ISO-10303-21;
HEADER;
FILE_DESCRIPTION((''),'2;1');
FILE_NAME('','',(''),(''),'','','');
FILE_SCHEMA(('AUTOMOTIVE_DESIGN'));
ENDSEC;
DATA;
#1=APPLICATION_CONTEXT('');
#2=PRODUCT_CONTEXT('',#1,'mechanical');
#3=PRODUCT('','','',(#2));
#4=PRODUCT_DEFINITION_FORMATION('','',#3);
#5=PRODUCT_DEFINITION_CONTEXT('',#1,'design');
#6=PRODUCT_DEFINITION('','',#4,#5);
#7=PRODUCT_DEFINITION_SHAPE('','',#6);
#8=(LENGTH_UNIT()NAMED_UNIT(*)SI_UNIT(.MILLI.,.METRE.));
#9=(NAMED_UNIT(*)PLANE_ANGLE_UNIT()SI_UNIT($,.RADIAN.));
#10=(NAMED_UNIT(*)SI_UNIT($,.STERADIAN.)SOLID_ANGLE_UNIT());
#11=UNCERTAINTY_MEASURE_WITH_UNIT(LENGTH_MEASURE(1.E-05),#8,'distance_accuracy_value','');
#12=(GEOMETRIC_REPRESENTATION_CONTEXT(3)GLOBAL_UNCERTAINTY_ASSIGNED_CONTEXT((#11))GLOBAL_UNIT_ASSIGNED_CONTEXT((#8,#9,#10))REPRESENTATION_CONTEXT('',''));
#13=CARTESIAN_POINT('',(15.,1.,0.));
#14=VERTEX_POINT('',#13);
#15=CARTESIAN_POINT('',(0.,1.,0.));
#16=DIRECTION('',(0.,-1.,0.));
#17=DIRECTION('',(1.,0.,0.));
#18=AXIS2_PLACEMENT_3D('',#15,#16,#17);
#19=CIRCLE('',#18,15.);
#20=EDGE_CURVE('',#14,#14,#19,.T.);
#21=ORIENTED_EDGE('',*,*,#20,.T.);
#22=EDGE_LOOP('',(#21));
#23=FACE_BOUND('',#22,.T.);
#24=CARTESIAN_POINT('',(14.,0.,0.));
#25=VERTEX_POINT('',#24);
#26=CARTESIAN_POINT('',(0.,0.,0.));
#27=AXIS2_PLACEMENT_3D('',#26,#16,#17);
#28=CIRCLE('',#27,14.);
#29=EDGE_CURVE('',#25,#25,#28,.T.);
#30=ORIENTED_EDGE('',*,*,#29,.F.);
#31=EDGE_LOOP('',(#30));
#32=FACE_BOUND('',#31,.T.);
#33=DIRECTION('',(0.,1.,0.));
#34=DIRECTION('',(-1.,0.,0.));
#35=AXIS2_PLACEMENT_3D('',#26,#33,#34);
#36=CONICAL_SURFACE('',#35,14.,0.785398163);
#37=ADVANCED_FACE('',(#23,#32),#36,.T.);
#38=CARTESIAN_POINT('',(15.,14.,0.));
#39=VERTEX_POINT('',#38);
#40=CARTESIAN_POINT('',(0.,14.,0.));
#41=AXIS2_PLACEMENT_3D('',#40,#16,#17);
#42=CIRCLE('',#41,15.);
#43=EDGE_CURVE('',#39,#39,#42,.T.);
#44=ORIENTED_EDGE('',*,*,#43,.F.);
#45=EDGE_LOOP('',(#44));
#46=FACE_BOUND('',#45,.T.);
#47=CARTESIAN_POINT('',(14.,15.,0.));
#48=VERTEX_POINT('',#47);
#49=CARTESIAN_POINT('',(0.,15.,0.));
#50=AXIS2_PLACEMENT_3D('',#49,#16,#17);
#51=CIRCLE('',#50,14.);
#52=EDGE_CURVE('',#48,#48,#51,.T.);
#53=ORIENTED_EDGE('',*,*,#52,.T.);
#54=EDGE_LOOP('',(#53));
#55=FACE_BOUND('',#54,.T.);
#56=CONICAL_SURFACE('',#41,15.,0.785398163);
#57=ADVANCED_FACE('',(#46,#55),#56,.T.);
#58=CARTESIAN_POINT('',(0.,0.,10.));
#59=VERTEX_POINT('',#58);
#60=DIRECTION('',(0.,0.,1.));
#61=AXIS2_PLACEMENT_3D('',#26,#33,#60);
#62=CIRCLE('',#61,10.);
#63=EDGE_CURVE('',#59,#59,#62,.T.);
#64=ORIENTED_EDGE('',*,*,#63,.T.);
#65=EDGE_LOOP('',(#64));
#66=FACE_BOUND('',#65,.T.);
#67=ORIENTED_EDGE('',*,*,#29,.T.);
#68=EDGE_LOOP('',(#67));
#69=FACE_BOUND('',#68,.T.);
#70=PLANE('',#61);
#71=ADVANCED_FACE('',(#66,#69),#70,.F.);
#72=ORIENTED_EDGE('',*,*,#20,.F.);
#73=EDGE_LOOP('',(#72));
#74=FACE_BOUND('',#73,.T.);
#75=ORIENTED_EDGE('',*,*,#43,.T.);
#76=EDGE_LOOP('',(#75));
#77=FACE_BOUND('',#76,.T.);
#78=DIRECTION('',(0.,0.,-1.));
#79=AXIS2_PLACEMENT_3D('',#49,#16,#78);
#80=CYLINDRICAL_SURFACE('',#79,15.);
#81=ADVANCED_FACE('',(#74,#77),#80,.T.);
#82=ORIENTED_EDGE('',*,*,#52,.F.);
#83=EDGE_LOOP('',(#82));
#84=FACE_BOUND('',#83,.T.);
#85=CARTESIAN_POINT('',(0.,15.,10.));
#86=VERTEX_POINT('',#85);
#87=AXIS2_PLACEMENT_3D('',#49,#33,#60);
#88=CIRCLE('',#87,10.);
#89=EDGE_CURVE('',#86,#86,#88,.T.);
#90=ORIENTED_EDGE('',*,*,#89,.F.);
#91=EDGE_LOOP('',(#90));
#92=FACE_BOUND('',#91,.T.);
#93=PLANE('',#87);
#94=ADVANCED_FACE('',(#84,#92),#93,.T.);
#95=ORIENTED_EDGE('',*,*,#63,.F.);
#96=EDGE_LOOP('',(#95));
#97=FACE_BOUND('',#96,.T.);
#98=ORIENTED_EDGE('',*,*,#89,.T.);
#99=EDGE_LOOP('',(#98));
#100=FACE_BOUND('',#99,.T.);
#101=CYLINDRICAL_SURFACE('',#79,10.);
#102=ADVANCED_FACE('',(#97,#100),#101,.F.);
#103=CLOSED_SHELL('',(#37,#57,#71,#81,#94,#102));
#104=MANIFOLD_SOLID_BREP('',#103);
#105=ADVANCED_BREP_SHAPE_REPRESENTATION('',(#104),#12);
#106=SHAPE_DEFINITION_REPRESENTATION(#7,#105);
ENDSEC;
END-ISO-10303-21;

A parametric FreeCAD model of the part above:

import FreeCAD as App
import Part
import Sketcher
from FreeCAD import Vector
Q = App.Units.Quantity

doc = App.newDocument("Part")
params = doc.addObject("Spreadsheet::Sheet", "Params")
for row, (alias, value) in enumerate([
    ("sketch1_diameter", "30 mm"),
    ("sketch1_diameter2", "20 mm"),
    ("pad1_length", "15 mm"),
    ("sketch2_width", "1 mm"),
    ("groove_angle", "360 deg"),
], start=1):
    params.set(f"A{row}", alias)
    params.set(f"B{row}", "=" + value)
    params.setAlias(f"B{row}", alias)

body = doc.addObject("PartDesign::Body", "Body")

# Sketch on XZ plane
sketch1 = body.newObject("Sketcher::SketchObject", "Sketch")
sketch1.AttachmentSupport = (doc.getObject("XZ_Plane"), [""])
sketch1.MapMode = "FlatFace"
sketch1.addGeometry(Part.Circle(Vector(0, 0, 0), Vector(0, 0, 1), 15), False)
sketch1.addGeometry(Part.Circle(Vector(0, 0, 0), Vector(0, 0, 1), 10), False)
sketch1.addConstraint(Sketcher.Constraint("Coincident", 0, 3, -1, 1))
sketch1.addConstraint(Sketcher.Constraint("Coincident", 1, 3, -1, 1))
sketch1.addConstraint(Sketcher.Constraint("Diameter", 0, Q("30 mm")))
sketch1.addConstraint(Sketcher.Constraint("Diameter", 1, Q("20 mm")))
sketch1.setExpression("Constraints[2]", "Params.sketch1_diameter")
sketch1.setExpression("Constraints[3]", "Params.sketch1_diameter2")
pad1 = body.newObject("PartDesign::Pad", "Pad")
pad1.Profile = sketch1
pad1.setExpression("Length", "Params.pad1_length")
pad1.Reversed = True

# Sketch on XY plane
sketch2 = body.newObject("Sketcher::SketchObject", "Sketch001")
sketch2.AttachmentSupport = (doc.getObject("XY_Plane"), [""])
sketch2.MapMode = "FlatFace"
sketch2.addGeometry(Part.LineSegment(Vector(-14, 15, 0), Vector(-15, 15, 0)), False)
sketch2.addGeometry(Part.LineSegment(Vector(-15, 15, 0), Vector(-15, 14, 0)), False)
sketch2.addGeometry(Part.LineSegment(Vector(-15, 14, 0), Vector(-14, 15, 0)), False)
sketch2.addGeometry(Part.LineSegment(Vector(-15, 0, 0), Vector(-14, 0, 0)), False)
sketch2.addGeometry(Part.LineSegment(Vector(-14, 0, 0), Vector(-15, 1, 0)), False)
sketch2.addGeometry(Part.LineSegment(Vector(-15, 1, 0), Vector(-15, 0, 0)), False)
sketch2.addConstraint(Sketcher.Constraint("Coincident", 0, 2, 1, 1))
sketch2.addConstraint(Sketcher.Constraint("Coincident", 1, 2, 2, 1))
sketch2.addConstraint(Sketcher.Constraint("Coincident", 2, 2, 0, 1))
sketch2.addConstraint(Sketcher.Constraint("Coincident", 3, 2, 4, 1))
sketch2.addConstraint(Sketcher.Constraint("Coincident", 4, 2, 5, 1))
sketch2.addConstraint(Sketcher.Constraint("Coincident", 5, 2, 3, 1))
sketch2.addConstraint(Sketcher.Constraint("Horizontal", 0))
sketch2.addConstraint(Sketcher.Constraint("Vertical", 1))
sketch2.addConstraint(Sketcher.Constraint("Horizontal", 3))
sketch2.addConstraint(Sketcher.Constraint("Vertical", 5))
sketch2.addConstraint(Sketcher.Constraint("PointOnObject", 3, 2, -1))
sketch2.addConstraint(Sketcher.Constraint("Perpendicular", 2, 4))
sketch2.addConstraint(Sketcher.Constraint("Vertical", 2, 2, 3, 2))
sketch2.addConstraint(Sketcher.Constraint("Vertical", 1, 2, 4, 2))
sketch2.addConstraint(Sketcher.Constraint("Equal", 3, 1))
sketch2.addConstraint(Sketcher.Constraint("DistanceX", 0, 2, 0, 1, Q("1 mm")))
sketch2.addConstraint(Sketcher.Constraint("DistanceX", 0, 2, -1, 1, Q("15 mm")))
sketch2.addConstraint(Sketcher.Constraint("DistanceY", -1, 1, 0, 2, Q("15 mm")))
sketch2.setExpression("Constraints[15]", "Params.sketch2_width")
groove = body.newObject("PartDesign::Groove", "Groove")
groove.Profile = sketch2
groove.ReferenceAxis = (sketch2, ["V_Axis"])
groove.setExpression("Angle", "Params.groove_angle")

doc.recompute()
